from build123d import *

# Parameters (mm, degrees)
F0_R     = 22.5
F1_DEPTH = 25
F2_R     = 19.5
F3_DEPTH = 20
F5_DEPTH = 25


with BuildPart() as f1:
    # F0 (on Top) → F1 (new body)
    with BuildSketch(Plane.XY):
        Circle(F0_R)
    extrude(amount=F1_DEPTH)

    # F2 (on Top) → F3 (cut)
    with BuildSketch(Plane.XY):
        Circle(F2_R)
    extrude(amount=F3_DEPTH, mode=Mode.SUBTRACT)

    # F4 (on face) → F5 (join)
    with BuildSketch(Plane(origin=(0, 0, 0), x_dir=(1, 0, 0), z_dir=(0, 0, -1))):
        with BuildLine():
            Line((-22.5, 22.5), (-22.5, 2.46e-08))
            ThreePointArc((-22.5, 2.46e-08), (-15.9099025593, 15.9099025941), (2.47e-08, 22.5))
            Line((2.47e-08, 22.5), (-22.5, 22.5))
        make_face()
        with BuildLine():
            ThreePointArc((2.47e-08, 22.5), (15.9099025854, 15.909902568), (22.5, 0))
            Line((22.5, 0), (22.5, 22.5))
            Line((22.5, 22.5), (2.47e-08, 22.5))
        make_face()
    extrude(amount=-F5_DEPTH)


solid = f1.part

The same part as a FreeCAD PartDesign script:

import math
import FreeCAD as App
import Part
import Sketcher

V = App.Vector

doc = App.newDocument("Part")
body = doc.addObject("PartDesign::Body", "Body")

# Sketch on XY plane
sketch1 = body.newObject("Sketcher::SketchObject", "Sketch")
sketch1.AttachmentSupport = (doc.getObject("XY_Plane"), [""])
sketch1.MapMode = "FlatFace"
sketch1.addGeometry(Part.Circle(V(0, 0, 0), V(0, 0, 1), 22.5), False)
sketch1.addConstraint([
    Sketcher.Constraint("Coincident", 0, 3, -1, 1),
    Sketcher.Constraint("Diameter", 0, 45.0),
])
pad1 = body.newObject("PartDesign::Pad", "Pad")
pad1.Profile = sketch1
pad1.Length = 25

# Sketch on XY plane
sketch2 = body.newObject("Sketcher::SketchObject", "Sketch001")
sketch2.AttachmentSupport = (doc.getObject("XY_Plane"), [""])
sketch2.MapMode = "FlatFace"
sketch2.addGeometry(Part.Circle(V(0, 0, 0), V(0, 0, 1), 19.5), False)
sketch2.addConstraint([
    Sketcher.Constraint("Coincident", 0, 3, -1, 1),
    Sketcher.Constraint("Diameter", 0, 39.0),
])
pocket1 = body.newObject("PartDesign::Pocket", "Pocket")
pocket1.Profile = sketch2
pocket1.Length = 20
pocket1.Reversed = True

# Sketch on XY plane
sketch3 = body.newObject("Sketcher::SketchObject", "Sketch002")
sketch3.AttachmentSupport = (doc.getObject("XY_Plane"), [""])
sketch3.MapMode = "FlatFace"
sketch3.addGeometry([
    Part.LineSegment(V(-22.5, -22.5, 0), V(-22.5, 0, 0)),  # 0
    Part.ArcOfCircle(Part.Circle(V(0, 0, 0), V(0, 0, 1), 22.5), math.radians(-180), math.radians(-90)),  # 1
    Part.LineSegment(V(0, -22.5, 0), V(-22.5, -22.5, 0)),  # 2
    Part.ArcOfCircle(Part.Circle(V(0, 0, 0), V(0, 0, 1), 22.5), math.radians(-90), math.radians(0)),  # 3
    Part.LineSegment(V(22.5, 0, 0), V(22.5, -22.5, 0)),  # 4
    Part.LineSegment(V(22.5, -22.5, 0), V(0, -22.5, 0)),  # 5
], False)
sketch3.addConstraint([
    Sketcher.Constraint("Tangent", 0, 2, 1, 1),
    Sketcher.Constraint("Tangent", 1, 2, 2, 1),
    Sketcher.Constraint("Coincident", 2, 2, 0, 1),
    Sketcher.Constraint("Tangent", 3, 2, 4, 1),
    Sketcher.Constraint("Coincident", 4, 2, 5, 1),
    Sketcher.Constraint("Tangent", 5, 2, 3, 1),
    Sketcher.Constraint("Vertical", 0),
    Sketcher.Constraint("Horizontal", 2),
    Sketcher.Constraint("Vertical", 4),
    Sketcher.Constraint("Horizontal", 5),
    Sketcher.Constraint("Coincident", 1, 3, -1, 1),
    Sketcher.Constraint("Coincident", 3, 3, -1, 1),
    Sketcher.Constraint("Equal", 1, 3),
    Sketcher.Constraint("Radius", 1, 22.5),
])
pad2 = body.newObject("PartDesign::Pad", "Pad001")
pad2.Profile = sketch3
pad2.Length = 25

doc.recompute()
